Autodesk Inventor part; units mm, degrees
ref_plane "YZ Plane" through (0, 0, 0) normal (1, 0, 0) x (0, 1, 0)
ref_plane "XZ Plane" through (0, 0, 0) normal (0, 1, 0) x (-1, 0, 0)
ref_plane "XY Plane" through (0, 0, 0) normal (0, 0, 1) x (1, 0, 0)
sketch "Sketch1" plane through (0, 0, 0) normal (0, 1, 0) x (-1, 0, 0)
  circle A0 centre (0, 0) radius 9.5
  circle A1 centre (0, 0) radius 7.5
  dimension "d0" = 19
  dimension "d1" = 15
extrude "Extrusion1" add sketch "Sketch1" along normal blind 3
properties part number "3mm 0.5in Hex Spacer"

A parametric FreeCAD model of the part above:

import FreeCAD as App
import Part
import Sketcher
Q = App.Units.Quantity

doc = App.newDocument("Part")
body = doc.addObject("PartDesign::Body", "Body")

sketch1 = body.newObject("Sketcher::SketchObject", "Sketch")
sketch1.AttachmentSupport = (doc.getObject("XZ_Plane"), [""])
sketch1.MapMode = "FlatFace"
sketch1.addGeometry(Part.Circle(App.Vector(0, 0, 0), App.Vector(0, 0, 1), 10), False)
sketch1.addGeometry(Part.Circle(App.Vector(0, 0, 0), App.Vector(0, 0, 1), 8), False)
sketch1.addConstraint(Sketcher.Constraint("Coincident", 0, 3, -1, 1))
sketch1.addConstraint(Sketcher.Constraint("Coincident", 1, 3, -1, 1))
sketch1.addConstraint(Sketcher.Constraint("Diameter", 0, Q("19 mm")))
sketch1.addConstraint(Sketcher.Constraint("Diameter", 1, Q("15 mm")))
pad1 = body.newObject("PartDesign::Pad", "Pad")
pad1.Profile = sketch1
pad1.Length = 3
pad1.Reversed = True

doc.recompute()
